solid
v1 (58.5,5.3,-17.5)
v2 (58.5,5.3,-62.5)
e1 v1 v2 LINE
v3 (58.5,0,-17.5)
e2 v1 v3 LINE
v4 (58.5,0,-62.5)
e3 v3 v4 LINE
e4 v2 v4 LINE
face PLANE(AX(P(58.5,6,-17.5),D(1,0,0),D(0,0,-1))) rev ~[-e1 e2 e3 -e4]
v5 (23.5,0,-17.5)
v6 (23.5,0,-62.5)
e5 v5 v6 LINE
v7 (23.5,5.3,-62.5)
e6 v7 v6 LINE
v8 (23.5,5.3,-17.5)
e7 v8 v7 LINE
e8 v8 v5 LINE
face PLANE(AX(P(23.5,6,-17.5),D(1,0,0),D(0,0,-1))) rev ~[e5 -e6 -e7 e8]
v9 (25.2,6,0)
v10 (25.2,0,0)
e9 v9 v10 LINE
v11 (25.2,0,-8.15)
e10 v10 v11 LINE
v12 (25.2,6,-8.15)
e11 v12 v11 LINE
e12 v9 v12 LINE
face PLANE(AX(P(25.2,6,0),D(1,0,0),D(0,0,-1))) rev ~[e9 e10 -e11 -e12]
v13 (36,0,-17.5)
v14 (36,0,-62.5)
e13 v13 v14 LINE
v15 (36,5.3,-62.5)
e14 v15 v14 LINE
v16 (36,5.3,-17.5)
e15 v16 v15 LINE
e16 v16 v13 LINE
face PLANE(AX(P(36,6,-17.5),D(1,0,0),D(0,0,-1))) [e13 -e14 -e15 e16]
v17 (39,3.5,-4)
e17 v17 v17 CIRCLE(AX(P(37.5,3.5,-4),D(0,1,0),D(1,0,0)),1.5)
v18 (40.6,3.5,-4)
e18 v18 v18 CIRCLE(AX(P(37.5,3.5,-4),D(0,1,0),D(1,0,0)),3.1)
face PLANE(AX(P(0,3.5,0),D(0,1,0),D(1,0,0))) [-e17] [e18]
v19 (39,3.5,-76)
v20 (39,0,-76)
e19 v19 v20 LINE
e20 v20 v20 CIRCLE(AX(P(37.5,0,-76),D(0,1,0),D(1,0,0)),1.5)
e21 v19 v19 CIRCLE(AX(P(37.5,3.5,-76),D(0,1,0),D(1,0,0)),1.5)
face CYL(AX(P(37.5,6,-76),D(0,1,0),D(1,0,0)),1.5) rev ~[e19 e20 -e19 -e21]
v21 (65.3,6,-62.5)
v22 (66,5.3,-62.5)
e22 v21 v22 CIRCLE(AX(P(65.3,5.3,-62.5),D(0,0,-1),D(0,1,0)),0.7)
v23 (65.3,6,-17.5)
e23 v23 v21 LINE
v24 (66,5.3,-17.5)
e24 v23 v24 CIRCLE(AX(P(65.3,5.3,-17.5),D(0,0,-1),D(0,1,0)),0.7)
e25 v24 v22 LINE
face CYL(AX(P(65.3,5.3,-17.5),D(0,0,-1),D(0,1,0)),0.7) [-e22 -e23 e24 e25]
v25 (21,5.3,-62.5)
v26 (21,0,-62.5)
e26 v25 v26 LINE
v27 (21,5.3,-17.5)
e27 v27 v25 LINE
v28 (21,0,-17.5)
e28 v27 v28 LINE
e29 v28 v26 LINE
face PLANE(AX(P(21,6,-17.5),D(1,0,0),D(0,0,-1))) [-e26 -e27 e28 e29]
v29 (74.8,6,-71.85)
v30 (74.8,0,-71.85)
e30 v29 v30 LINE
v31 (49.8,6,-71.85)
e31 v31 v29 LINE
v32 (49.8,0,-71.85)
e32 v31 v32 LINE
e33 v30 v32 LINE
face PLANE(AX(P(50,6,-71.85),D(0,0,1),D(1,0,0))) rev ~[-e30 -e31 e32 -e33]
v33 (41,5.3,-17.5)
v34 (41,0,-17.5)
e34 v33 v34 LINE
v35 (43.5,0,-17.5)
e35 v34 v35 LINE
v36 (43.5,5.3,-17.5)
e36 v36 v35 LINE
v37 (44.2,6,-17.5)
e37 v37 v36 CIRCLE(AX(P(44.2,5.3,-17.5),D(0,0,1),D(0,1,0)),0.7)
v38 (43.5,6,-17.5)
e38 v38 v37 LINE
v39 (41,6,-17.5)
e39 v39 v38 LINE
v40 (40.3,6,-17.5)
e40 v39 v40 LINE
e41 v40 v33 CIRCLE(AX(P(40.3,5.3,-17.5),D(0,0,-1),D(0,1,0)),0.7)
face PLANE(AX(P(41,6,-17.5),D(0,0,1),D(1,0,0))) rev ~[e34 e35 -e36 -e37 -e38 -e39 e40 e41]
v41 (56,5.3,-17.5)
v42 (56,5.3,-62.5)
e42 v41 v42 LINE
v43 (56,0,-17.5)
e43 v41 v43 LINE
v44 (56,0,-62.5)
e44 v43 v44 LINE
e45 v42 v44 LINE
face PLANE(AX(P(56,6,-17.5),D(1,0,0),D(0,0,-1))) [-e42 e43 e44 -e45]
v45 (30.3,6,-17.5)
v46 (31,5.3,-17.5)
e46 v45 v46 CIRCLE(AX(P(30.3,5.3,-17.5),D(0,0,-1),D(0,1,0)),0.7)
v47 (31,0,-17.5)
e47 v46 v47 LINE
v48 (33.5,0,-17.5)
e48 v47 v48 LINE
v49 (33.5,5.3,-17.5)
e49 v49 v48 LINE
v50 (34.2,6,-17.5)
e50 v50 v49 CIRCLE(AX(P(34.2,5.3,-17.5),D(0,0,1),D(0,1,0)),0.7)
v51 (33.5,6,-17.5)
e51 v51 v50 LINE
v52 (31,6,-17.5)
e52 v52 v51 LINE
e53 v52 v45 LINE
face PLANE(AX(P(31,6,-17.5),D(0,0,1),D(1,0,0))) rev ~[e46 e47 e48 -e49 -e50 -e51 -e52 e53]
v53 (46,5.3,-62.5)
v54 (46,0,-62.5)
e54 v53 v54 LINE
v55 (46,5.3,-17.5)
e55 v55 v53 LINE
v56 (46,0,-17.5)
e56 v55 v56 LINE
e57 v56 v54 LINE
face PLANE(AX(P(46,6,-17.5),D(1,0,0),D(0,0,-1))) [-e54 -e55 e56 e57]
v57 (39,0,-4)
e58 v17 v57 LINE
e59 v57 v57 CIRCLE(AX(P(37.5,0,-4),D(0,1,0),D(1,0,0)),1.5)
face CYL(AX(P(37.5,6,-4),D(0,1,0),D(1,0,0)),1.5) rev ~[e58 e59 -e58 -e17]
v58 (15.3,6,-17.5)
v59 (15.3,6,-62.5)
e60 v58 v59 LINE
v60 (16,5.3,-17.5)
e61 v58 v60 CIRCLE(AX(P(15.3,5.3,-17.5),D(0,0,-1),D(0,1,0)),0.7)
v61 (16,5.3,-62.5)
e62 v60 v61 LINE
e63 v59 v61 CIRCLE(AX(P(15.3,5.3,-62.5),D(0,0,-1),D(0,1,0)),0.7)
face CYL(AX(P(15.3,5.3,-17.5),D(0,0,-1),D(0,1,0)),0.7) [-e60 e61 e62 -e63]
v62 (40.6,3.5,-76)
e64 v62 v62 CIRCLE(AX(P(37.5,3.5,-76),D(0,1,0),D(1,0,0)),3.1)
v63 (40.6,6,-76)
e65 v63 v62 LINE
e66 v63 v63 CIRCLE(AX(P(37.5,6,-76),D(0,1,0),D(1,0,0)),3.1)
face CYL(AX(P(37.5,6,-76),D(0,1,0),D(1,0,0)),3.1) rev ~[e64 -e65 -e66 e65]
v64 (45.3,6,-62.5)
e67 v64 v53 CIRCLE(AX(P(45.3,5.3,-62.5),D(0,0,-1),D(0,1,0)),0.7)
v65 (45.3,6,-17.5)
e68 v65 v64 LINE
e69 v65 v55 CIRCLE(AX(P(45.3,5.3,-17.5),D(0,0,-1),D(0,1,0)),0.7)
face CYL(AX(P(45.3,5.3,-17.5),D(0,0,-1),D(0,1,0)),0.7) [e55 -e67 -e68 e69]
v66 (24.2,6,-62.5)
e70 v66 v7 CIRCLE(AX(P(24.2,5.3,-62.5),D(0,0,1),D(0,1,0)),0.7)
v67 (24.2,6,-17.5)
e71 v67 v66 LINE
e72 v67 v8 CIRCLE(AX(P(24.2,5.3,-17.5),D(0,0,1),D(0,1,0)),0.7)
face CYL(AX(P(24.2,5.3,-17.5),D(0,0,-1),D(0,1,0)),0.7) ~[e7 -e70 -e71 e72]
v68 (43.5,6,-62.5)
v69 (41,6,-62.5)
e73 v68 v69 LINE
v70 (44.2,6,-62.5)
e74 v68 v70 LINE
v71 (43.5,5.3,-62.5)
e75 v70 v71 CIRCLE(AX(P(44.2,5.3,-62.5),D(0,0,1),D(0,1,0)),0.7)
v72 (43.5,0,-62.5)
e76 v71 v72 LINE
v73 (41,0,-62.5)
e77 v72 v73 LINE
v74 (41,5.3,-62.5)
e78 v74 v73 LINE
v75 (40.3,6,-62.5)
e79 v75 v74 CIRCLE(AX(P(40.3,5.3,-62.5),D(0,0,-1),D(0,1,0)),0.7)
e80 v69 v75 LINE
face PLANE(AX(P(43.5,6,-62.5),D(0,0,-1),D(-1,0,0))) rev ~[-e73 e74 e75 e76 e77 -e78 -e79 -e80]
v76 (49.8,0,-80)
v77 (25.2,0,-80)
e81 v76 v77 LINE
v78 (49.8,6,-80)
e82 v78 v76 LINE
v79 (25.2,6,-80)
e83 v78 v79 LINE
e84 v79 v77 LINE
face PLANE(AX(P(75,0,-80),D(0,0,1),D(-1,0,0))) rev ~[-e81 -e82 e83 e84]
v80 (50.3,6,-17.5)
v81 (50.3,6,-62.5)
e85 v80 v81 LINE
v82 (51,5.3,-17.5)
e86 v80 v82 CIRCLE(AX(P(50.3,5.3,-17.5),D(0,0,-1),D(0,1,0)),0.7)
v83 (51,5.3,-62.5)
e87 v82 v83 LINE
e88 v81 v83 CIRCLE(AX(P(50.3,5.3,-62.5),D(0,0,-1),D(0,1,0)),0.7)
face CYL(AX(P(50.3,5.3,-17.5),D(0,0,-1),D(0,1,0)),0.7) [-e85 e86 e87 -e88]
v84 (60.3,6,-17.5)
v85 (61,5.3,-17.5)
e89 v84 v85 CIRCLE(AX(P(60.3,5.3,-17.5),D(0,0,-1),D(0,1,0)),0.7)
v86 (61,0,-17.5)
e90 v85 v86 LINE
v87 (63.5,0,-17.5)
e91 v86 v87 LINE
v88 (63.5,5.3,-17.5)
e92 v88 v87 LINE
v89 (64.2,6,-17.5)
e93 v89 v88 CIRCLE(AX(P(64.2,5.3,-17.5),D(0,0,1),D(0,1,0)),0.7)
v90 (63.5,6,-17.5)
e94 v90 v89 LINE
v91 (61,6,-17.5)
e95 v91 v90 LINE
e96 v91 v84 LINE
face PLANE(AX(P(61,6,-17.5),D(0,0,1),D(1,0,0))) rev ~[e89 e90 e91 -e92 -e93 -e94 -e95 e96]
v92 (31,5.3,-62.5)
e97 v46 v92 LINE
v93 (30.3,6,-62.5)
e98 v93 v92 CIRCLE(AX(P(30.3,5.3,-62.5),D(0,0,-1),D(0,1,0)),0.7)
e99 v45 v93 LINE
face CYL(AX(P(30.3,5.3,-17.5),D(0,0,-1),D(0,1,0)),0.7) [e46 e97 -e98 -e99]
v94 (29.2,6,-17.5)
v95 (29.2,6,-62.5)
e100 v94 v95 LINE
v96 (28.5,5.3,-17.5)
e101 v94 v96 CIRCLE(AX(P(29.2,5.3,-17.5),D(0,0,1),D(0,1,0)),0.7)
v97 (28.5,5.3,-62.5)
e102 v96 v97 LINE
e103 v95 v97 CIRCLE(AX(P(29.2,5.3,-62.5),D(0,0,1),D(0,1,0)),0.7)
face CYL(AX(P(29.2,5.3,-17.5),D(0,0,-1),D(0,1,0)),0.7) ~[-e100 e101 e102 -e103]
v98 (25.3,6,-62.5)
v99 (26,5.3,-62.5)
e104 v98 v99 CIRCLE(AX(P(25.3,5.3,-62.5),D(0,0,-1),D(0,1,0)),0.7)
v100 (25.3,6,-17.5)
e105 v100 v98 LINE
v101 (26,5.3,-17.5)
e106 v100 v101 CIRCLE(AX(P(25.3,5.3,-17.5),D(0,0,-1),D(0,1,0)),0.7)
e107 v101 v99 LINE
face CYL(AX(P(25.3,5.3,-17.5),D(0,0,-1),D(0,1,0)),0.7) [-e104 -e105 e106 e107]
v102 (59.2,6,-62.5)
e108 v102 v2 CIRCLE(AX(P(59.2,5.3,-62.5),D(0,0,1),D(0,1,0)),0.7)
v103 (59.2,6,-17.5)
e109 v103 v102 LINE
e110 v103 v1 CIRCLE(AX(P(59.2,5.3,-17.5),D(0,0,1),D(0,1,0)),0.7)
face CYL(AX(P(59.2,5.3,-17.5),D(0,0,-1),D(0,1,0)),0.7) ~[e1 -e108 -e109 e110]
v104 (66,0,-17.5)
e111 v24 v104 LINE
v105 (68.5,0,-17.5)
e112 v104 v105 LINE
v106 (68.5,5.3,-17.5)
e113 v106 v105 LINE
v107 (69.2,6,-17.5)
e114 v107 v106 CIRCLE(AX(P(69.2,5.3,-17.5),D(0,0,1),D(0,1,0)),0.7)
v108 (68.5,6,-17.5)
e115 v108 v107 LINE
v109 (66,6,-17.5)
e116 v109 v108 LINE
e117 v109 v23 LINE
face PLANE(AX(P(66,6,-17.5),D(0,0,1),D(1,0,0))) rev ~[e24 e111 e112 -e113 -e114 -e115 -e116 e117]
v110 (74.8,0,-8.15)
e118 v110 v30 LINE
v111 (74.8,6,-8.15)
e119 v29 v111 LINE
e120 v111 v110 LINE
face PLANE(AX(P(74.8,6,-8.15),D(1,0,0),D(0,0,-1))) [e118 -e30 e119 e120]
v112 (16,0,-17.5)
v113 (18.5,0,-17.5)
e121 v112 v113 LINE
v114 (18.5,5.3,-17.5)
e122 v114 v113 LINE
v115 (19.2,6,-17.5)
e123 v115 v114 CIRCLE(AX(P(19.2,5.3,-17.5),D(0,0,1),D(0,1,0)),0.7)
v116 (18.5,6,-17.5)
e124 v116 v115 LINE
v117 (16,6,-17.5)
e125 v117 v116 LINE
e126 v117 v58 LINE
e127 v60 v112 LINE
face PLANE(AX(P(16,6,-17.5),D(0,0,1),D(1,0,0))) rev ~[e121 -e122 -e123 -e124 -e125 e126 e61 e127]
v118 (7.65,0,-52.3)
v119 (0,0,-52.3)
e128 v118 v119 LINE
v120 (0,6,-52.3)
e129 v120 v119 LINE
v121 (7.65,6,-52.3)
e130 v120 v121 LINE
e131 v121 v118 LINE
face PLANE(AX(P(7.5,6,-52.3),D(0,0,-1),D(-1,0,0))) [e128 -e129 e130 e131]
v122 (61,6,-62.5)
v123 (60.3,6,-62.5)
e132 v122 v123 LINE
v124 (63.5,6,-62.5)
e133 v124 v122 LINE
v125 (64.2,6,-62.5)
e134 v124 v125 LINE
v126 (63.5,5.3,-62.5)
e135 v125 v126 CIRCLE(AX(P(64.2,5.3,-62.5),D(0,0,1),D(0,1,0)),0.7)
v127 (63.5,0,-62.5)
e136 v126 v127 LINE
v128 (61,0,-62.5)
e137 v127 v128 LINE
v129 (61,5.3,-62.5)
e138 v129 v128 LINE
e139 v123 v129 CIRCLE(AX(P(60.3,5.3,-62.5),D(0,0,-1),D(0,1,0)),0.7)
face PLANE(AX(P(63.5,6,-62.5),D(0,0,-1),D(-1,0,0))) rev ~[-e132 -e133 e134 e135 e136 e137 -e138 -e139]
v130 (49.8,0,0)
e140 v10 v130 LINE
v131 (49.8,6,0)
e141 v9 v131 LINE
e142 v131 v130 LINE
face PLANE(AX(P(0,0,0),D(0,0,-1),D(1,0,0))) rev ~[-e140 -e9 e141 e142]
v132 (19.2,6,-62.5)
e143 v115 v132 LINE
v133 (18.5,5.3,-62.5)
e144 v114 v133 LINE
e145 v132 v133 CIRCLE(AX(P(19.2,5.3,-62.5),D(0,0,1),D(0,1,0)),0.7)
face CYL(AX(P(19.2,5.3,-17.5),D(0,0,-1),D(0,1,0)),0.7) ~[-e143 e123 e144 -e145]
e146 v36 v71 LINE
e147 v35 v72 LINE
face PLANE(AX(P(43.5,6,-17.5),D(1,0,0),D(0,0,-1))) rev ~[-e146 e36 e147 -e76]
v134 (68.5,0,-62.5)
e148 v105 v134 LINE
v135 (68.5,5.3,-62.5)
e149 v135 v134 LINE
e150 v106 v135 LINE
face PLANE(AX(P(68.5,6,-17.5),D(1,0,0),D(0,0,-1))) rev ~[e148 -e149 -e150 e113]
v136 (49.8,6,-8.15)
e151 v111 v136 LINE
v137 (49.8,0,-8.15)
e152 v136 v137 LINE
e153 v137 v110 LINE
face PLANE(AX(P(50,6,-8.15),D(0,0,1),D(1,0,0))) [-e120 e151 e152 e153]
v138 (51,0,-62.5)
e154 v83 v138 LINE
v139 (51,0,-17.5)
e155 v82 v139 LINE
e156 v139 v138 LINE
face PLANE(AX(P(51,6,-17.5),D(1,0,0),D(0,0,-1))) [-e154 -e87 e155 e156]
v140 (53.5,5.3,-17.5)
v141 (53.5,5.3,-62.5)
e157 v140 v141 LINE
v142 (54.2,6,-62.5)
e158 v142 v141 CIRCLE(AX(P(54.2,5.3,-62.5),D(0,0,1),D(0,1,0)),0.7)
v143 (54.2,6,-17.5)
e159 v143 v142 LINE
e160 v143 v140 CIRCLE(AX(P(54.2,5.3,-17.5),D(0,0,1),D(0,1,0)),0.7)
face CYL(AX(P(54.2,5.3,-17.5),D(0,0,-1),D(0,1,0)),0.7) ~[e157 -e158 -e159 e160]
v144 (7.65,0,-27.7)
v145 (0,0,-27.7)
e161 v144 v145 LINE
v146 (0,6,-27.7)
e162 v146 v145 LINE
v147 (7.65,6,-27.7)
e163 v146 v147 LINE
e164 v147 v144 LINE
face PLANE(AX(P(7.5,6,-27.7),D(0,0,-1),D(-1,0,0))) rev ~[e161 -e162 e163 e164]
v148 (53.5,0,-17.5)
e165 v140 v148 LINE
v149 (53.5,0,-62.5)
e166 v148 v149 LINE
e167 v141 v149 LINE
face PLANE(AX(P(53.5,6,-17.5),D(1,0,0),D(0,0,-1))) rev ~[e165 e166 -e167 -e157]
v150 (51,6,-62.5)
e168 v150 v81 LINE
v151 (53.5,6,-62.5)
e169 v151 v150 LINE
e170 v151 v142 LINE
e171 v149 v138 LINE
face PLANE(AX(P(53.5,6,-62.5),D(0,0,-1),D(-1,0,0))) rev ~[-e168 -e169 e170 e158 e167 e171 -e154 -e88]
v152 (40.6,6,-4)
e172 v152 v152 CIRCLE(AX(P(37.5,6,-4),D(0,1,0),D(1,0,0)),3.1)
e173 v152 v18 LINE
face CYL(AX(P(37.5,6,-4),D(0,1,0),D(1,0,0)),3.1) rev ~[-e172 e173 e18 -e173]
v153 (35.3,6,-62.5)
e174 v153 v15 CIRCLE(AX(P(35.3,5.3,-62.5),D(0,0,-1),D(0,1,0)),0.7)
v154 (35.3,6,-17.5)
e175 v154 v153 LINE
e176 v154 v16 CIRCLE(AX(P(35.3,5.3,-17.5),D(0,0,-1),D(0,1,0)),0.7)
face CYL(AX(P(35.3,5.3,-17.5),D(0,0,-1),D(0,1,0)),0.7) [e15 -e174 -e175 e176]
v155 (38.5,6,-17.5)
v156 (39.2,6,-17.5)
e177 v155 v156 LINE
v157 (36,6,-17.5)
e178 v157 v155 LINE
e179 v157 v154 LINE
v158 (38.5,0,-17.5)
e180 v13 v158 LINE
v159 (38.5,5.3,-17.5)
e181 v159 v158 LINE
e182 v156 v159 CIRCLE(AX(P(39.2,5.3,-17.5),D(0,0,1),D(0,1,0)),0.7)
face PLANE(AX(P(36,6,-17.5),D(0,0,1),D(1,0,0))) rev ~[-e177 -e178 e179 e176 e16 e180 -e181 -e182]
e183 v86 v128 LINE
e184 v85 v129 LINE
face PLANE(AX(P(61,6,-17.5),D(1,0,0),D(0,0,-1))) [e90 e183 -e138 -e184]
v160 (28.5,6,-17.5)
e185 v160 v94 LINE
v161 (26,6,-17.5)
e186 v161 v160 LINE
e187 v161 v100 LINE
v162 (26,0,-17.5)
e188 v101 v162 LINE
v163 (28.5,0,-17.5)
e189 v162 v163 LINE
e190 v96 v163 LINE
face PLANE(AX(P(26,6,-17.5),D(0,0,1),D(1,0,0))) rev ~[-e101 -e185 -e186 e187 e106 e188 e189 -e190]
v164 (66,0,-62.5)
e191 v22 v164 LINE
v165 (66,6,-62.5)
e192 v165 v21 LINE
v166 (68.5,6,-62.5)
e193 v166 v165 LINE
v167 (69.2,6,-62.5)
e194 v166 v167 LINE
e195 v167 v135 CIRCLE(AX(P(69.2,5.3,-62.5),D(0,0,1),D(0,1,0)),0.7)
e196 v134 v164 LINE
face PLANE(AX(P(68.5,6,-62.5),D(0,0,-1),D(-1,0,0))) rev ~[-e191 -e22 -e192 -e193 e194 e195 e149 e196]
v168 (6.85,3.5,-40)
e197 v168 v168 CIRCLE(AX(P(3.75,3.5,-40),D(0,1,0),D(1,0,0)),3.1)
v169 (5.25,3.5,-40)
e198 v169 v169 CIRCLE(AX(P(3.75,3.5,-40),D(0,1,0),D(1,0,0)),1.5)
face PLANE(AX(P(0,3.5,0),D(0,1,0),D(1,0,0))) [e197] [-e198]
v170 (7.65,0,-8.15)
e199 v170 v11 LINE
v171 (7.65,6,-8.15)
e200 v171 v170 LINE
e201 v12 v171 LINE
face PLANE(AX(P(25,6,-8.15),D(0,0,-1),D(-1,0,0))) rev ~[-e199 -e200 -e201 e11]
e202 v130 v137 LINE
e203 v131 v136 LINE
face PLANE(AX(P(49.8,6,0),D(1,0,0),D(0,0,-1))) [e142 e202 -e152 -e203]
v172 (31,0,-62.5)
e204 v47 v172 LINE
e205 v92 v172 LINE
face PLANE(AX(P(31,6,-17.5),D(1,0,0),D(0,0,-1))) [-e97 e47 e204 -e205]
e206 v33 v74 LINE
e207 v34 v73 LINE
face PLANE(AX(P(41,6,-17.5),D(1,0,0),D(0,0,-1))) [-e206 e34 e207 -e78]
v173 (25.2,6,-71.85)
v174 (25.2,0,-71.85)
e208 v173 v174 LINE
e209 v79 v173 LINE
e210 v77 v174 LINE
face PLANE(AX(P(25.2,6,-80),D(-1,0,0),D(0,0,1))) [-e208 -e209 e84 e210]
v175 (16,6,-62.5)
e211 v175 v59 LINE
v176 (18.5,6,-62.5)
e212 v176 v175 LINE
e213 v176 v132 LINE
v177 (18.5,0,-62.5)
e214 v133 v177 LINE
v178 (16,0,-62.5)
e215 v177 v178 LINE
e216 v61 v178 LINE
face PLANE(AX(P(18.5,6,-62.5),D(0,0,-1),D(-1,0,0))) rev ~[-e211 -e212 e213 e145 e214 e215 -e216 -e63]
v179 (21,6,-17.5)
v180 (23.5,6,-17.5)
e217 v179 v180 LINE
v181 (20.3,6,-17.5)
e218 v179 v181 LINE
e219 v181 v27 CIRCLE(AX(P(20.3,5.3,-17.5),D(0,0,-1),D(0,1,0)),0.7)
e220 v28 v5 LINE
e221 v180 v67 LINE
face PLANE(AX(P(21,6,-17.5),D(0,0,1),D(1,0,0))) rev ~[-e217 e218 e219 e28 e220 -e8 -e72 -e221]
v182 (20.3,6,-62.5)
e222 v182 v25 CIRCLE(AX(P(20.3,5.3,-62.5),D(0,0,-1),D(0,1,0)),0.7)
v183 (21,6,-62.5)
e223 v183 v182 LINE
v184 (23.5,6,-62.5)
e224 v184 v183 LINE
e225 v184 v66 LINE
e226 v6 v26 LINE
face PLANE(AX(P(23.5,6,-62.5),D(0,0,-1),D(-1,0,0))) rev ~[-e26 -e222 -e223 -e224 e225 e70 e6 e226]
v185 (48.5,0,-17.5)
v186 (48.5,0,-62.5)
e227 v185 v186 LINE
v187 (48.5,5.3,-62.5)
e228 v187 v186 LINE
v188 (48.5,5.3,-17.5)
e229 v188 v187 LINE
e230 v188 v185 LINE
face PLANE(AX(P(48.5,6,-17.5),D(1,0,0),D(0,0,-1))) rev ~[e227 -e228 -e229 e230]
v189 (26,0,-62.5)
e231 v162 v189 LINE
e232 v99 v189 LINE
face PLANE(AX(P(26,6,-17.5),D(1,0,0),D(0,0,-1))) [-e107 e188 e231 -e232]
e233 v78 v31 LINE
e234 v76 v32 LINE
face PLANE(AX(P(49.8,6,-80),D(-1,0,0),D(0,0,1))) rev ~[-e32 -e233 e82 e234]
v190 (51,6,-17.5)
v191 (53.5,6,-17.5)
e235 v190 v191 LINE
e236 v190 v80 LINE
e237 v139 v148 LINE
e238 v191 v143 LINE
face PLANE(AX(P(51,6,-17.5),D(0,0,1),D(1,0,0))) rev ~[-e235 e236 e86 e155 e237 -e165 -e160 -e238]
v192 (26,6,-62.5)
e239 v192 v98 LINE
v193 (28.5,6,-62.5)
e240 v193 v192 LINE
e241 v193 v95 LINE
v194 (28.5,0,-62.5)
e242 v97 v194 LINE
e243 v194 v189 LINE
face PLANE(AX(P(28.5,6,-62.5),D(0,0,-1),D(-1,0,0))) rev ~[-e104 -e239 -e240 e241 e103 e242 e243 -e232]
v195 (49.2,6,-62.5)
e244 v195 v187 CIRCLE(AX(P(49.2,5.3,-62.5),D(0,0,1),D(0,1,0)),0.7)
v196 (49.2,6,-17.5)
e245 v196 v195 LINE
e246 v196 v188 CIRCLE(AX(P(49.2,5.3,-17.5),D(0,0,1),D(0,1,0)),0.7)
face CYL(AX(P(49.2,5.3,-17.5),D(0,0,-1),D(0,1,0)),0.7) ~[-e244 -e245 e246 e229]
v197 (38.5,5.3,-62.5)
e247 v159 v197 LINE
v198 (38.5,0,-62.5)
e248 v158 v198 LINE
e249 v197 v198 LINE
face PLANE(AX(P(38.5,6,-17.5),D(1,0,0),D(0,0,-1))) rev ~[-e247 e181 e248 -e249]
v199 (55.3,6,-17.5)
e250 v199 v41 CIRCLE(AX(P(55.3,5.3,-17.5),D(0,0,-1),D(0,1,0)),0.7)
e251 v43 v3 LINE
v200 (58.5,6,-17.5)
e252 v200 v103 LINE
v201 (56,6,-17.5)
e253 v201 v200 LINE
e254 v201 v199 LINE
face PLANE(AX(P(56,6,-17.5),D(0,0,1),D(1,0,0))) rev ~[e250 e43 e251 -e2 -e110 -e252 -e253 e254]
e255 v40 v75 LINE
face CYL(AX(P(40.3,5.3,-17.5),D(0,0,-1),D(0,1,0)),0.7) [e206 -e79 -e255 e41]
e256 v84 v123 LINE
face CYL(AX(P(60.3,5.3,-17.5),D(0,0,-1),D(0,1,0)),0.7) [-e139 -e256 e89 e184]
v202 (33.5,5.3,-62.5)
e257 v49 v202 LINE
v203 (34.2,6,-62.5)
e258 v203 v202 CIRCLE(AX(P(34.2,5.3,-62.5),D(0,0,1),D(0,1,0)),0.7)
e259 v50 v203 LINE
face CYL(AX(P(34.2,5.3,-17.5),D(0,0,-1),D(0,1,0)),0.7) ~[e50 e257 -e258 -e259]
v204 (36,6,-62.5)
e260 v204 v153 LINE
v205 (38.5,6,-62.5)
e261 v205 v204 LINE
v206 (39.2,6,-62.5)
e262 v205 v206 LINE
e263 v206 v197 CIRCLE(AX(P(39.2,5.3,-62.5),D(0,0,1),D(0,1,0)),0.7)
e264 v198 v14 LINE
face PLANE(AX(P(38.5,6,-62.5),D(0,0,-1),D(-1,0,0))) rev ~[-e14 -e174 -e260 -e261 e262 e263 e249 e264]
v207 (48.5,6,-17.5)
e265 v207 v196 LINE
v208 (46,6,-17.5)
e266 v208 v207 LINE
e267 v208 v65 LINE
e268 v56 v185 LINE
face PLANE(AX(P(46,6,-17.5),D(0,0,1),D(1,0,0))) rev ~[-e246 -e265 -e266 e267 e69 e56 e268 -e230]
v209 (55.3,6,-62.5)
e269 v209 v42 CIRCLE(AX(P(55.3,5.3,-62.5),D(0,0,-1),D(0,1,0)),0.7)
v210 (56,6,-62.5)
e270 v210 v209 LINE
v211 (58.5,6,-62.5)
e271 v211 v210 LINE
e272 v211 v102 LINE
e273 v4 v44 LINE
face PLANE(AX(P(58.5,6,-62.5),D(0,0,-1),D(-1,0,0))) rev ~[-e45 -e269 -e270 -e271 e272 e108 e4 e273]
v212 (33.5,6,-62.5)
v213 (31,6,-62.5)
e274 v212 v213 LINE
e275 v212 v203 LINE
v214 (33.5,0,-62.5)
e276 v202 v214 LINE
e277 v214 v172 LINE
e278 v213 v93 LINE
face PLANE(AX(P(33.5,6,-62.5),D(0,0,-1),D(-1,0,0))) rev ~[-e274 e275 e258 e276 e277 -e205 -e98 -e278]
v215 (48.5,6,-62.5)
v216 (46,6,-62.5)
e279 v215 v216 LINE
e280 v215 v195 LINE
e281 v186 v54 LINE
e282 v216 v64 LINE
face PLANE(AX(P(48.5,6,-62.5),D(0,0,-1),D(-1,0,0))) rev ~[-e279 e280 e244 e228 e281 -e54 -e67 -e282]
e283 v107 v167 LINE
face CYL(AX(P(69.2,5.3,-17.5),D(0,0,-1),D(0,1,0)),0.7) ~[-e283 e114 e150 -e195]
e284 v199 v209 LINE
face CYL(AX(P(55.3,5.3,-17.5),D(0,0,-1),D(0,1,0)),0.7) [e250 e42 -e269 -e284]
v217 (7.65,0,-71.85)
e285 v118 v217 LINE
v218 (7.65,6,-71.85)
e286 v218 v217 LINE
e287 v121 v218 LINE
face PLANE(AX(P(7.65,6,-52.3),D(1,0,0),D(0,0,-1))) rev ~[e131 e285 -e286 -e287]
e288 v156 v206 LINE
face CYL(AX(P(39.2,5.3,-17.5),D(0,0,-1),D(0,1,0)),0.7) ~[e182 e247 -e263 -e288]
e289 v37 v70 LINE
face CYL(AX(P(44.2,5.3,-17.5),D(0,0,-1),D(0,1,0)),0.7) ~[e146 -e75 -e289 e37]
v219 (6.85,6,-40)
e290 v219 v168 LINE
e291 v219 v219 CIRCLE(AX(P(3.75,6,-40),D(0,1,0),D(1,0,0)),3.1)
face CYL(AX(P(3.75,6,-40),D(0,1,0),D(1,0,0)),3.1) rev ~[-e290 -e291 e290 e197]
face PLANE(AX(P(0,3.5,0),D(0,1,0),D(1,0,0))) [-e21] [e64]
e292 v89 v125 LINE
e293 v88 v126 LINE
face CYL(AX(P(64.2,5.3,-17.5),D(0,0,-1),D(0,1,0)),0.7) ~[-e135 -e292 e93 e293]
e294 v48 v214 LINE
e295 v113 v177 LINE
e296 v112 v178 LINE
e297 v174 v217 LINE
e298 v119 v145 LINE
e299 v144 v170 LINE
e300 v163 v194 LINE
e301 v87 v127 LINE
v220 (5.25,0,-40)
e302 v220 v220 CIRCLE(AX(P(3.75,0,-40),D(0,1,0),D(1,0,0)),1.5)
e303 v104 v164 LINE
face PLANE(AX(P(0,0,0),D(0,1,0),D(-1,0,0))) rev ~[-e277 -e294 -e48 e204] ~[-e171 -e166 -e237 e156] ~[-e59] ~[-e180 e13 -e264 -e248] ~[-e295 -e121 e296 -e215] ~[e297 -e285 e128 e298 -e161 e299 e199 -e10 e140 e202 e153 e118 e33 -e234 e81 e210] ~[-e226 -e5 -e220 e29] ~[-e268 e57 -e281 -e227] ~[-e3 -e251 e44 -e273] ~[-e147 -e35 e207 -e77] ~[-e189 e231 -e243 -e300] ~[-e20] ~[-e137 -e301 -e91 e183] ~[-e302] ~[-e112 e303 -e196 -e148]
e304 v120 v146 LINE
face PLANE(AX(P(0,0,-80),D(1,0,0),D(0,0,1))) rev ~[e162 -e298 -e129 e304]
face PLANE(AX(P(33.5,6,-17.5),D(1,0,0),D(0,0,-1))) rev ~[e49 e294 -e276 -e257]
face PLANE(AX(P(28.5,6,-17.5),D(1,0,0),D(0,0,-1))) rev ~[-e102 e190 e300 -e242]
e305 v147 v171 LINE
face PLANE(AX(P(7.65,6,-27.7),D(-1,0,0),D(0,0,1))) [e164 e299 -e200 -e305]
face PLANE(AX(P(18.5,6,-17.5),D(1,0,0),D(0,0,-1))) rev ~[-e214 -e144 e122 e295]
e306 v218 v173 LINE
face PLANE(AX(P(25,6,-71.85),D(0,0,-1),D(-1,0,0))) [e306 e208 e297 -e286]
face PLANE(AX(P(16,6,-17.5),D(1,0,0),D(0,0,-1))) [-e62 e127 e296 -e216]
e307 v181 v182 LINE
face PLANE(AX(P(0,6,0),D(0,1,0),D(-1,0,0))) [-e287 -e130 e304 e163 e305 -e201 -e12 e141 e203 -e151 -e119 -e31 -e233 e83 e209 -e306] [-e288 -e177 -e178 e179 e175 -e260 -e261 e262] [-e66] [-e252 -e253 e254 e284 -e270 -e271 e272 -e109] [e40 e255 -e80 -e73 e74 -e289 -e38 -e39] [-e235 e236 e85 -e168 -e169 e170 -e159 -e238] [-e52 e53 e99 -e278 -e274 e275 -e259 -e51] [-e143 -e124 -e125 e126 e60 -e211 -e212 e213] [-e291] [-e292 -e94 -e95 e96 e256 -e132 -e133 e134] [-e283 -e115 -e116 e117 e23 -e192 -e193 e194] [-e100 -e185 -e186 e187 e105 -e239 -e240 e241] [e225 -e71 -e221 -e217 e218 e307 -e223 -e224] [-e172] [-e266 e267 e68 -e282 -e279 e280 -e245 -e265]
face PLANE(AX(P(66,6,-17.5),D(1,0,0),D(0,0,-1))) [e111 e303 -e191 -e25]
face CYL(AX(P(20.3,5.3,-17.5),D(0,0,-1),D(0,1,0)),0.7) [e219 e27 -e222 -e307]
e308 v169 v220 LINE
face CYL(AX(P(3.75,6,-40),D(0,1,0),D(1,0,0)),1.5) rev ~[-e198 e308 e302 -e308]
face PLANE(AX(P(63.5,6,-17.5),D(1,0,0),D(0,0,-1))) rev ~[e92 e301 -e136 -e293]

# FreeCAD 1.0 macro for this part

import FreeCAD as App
import Part
import Sketcher

V = App.Vector
Q = App.Units.Quantity


def edges_at(feature, points):
    """Names of the edges that pass closest to the given points."""
    edges = feature.Shape.Edges
    near = lambda p: min(range(len(edges)), key=lambda i: edges[i].distToShape(Part.Vertex(*p))[0])
    return sorted({f"Edge{near(p) + 1}" for p in points})


def add_polygon(sketch, points):
    """Adds a closed chain of lines whose ends are joined by coincident constraints."""
    first, n = sketch.GeometryCount, len(points)
    for a, b in zip(points, points[1:] + points[:1]):
        sketch.addGeometry(Part.LineSegment(App.Vector(*a, 0), App.Vector(*b, 0)), False)
    for i in range(n):
        sketch.addConstraint(Sketcher.Constraint("Coincident", first + i, 2, first + (i + 1) % n, 1))

doc = App.newDocument("Part")
params = doc.addObject("Spreadsheet::Sheet", "Params")
for row, (alias, value) in enumerate([
    ("sketch1_width", "75 mm"),
    ("sketch1_height", "80 mm"),
    ("pad1_length", "6 mm"),
    ("sketch2_width", "25 mm"),
    ("sketch2_height", "8 mm"),
    ("sketch2_width2", "7.5 mm"),
    ("sketch2_height2", "27.5 mm"),
    ("sketch3_diameter", "3 mm"),
    ("sketch4_diameter", "6.2 mm"),
    ("sketch4_diameter2", "3 mm"),
    ("pocket3_length", "2.5 mm"),
    ("sketch5_width", "0.2 mm"),
    ("sketch5_width2", "25 mm"),
    ("sketch5_height", "8 mm"),
    ("sketch5_height2", "64 mm"),
    ("sketch5_width3", "7.5 mm"),
    ("pocket4_length", "6 mm"),
    ("sketch6_height", "45 mm"),
    ("sketch6_width", "2.5 mm"),
    ("pocket5_length", "6 mm"),
    ("fillet_radius", "0.7 mm"),
], start=1):
    params.set(f"A{row}", alias)
    params.set(f"B{row}", "=" + value)
    params.setAlias(f"B{row}", alias)

body = doc.addObject("PartDesign::Body", "Body")

# Sketch on XZ plane
sketch1 = body.newObject("Sketcher::SketchObject", "Sketch")
sketch1.AttachmentSupport = (doc.getObject("XZ_Plane"), [""])
sketch1.MapMode = "FlatFace"
add_polygon(sketch1, [(0, -80), (0, 0), (75, 0), (75, -80)])  # lines 0-3
sketch1.addConstraint([
    Sketcher.Constraint("Vertical", 0),
    Sketcher.Constraint("Horizontal", 1),
    Sketcher.Constraint("Vertical", 2),
    Sketcher.Constraint("Horizontal", 3),
    Sketcher.Constraint("Coincident", 0, 2, -1, 1),
    Sketcher.Constraint("DistanceX", 1, 1, 1, 2, Q("75 mm")),
    Sketcher.Constraint("DistanceY", 0, 1, 0, 2, Q("80 mm")),
])
sketch1.setExpression("Constraints[9]", "Params.sketch1_width")
sketch1.setExpression("Constraints[10]", "Params.sketch1_height")
pad1 = body.newObject("PartDesign::Pad", "Pad")
pad1.Profile = sketch1
pad1.setExpression("Length", "Params.pad1_length")
pad1.Reversed = True

# Sketch on XZ plane
sketch2 = body.newObject("Sketcher::SketchObject", "Sketch001")
sketch2.AttachmentSupport = (doc.getObject("XZ_Plane"), [""])
sketch2.MapMode = "FlatFace"
sketch2.AttachmentOffset = App.Placement(V(0, 0, -6), App.Rotation())
add_polygon(sketch2, [(0, -28), (0, 0), (25, 0), (25, -8), (8, -8), (8, -28)])  # lines 0-5
add_polygon(sketch2, [(50, -8), (50, 0), (75, 0), (75, -8)])  # lines 6-9
add_polygon(sketch2, [(0, -80), (0, -52), (8, -52), (8, -72), (25, -72), (25, -80)])  # lines 10-15
add_polygon(sketch2, [(50, -72), (75, -72), (75, -80), (50, -80)])  # lines 16-19
sketch2.addConstraint([
    Sketcher.Constraint("Vertical", 0),
    Sketcher.Constraint("Horizontal", 1),
    Sketcher.Constraint("Vertical", 2),
    Sketcher.Constraint("Horizontal", 3),
    Sketcher.Constraint("Vertical", 4),
    Sketcher.Constraint("Horizontal", 5),
    Sketcher.Constraint("Vertical", 6),
    Sketcher.Constraint("Horizontal", 7),
    Sketcher.Constraint("Vertical", 8),
    Sketcher.Constraint("Horizontal", 9),
    Sketcher.Constraint("Vertical", 10),
    Sketcher.Constraint("Horizontal", 11),
    Sketcher.Constraint("Vertical", 12),
    Sketcher.Constraint("Horizontal", 13),
    Sketcher.Constraint("Vertical", 14),
    Sketcher.Constraint("Horizontal", 15),
    Sketcher.Constraint("Horizontal", 16),
    Sketcher.Constraint("Vertical", 17),
    Sketcher.Constraint("Horizontal", 18),
    Sketcher.Constraint("Vertical", 19),
    Sketcher.Constraint("Coincident", 0, 2, -1, 1),
    Sketcher.Constraint("PointOnObject", 6, 2, -1),
    Sketcher.Constraint("PointOnObject", 10, 2, -2),
    Sketcher.Constraint("Horizontal", 3, 2, 8, 2),
    Sketcher.Constraint("Horizontal", 13, 2, 16, 2),
    Sketcher.Constraint("Horizontal", 15, 2, 17, 2),
    Sketcher.Constraint("Vertical", 4, 2, 11, 2),
    Sketcher.Constraint("Vertical", 2, 2, 13, 2),
    Sketcher.Constraint("Vertical", 8, 2, 16, 2),
    Sketcher.Constraint("Vertical", 9, 2, 18, 2),
    Sketcher.Constraint("Equal", 1, 7),
    Sketcher.Constraint("Equal", 0, 10),
    Sketcher.Constraint("Equal", 4, 12),
    Sketcher.Constraint("DistanceX", 1, 1, 1, 2, Q("25 mm")),
    Sketcher.Constraint("DistanceY", 2, 2, 2, 1, Q("8 mm")),
    Sketcher.Constraint("DistanceX", 5, 2, 5, 1, Q("7.5 mm")),
    Sketcher.Constraint("DistanceY", 0, 1, 0, 2, Q("27.5 mm")),
    Sketcher.Constraint("DistanceX", 1, 2, 6, 2, Q("25 mm")),
    Sketcher.Constraint("DistanceY", 10, 2, 5, 2, Q("25 mm")),
])
sketch2.setExpression("Constraints[53]", "Params.sketch2_width")
sketch2.setExpression("Constraints[54]", "Params.sketch2_height")
sketch2.setExpression("Constraints[55]", "Params.sketch2_width2")
sketch2.setExpression("Constraints[56]", "Params.sketch2_height2")
pocket1 = body.newObject("PartDesign::Pocket", "Pocket")
pocket1.Profile = sketch2
pocket1.Type = "ThroughAll"
pocket1.Reversed = True

# Sketch on XZ plane
sketch3 = body.newObject("Sketcher::SketchObject", "Sketch002")
sketch3.AttachmentSupport = (doc.getObject("XZ_Plane"), [""])
sketch3.MapMode = "FlatFace"
sketch3.AttachmentOffset = App.Placement(V(0, 0, -6), App.Rotation())
sketch3.addGeometry([
    Part.Circle(V(3.8, -40, 0), V(0, 0, 1), 1.5),
    Part.Circle(V(37.5, -76, 0), V(0, 0, 1), 1.5),
    Part.Circle(V(37.5, -4, 0), V(0, 0, 1), 1.5),
], False)
sketch3.addConstraint([
    Sketcher.Constraint("Equal", 0, 1),
    Sketcher.Constraint("Equal", 1, 2),
    Sketcher.Constraint("Vertical", 1, 3, 2, 3),
    Sketcher.Constraint("Diameter", 0, Q("3 mm")),
    Sketcher.Constraint("DistanceY", 2, 3, -1, 1, Q("4 mm")),
    Sketcher.Constraint("DistanceX", -1, 1, 0, 3, Q("3.75 mm")),
    Sketcher.Constraint("DistanceY", 0, 3, -1, 1, Q("40 mm")),
    Sketcher.Constraint("DistanceY", 1, 3, -1, 1, Q("76 mm")),
    Sketcher.Constraint("DistanceX", -1, 1, 1, 3, Q("37.5 mm")),
])
sketch3.setExpression("Constraints[3]", "Params.sketch3_diameter")
pocket2 = body.newObject("PartDesign::Pocket", "Pocket001")
pocket2.Profile = sketch3
pocket2.Type = "ThroughAll"
pocket2.Reversed = True

# Sketch on XZ plane
sketch4 = body.newObject("Sketcher::SketchObject", "Sketch003")
sketch4.AttachmentSupport = (doc.getObject("XZ_Plane"), [""])
sketch4.MapMode = "FlatFace"
sketch4.AttachmentOffset = App.Placement(V(0, 0, -6), App.Rotation())
sketch4.addGeometry([
    Part.Circle(V(3.8, -40, 0), V(0, 0, 1), 3.1),
    Part.Circle(V(37.5, -4, 0), V(0, 0, 1), 3.1),
    Part.Circle(V(37.5, -76, 0), V(0, 0, 1), 3.1),
    Part.Circle(V(37.5, -76, 0), V(0, 0, 1), 1.5),
], False)
sketch4.addConstraint([
    Sketcher.Constraint("Coincident", 3, 3, 2, 3),
    Sketcher.Constraint("Equal", 0, 1),
    Sketcher.Constraint("Equal", 1, 2),
    Sketcher.Constraint("Vertical", 1, 3, 2, 3),
    Sketcher.Constraint("Diameter", 0, Q("6.2 mm")),
    Sketcher.Constraint("Diameter", 3, Q("3 mm")),
    Sketcher.Constraint("DistanceY", 0, 3, -1, 1, Q("40 mm")),
    Sketcher.Constraint("DistanceY", 1, 3, -1, 1, Q("4 mm")),
    Sketcher.Constraint("DistanceY", 2, 3, -1, 1, Q("76 mm")),
    Sketcher.Constraint("DistanceX", -1, 1, 1, 3, Q("37.5 mm")),
    Sketcher.Constraint("DistanceX", -1, 1, 0, 3, Q("3.75 mm")),
])
sketch4.setExpression("Constraints[4]", "Params.sketch4_diameter")
sketch4.setExpression("Constraints[5]", "Params.sketch4_diameter2")
pocket3 = body.newObject("PartDesign::Pocket", "Pocket002")
pocket3.Profile = sketch4
pocket3.setExpression("Length", "Params.pocket3_length")
pocket3.Reversed = True

# Sketch on XZ plane
sketch5 = body.newObject("Sketcher::SketchObject", "Sketch004")
sketch5.AttachmentSupport = (doc.getObject("XZ_Plane"), [""])
sketch5.MapMode = "FlatFace"
sketch5.AttachmentOffset = App.Placement(V(0, 0, -6), App.Rotation())
add_polygon(sketch5, [(7.5, -52.5), (0, -52.5), (0, -52.3), (7.65, -52.3), (7.65, -71.85), (25.2, -71.85), (25.2, -80), (25, -80), (25, -72), (7.5, -72)])  # lines 0-9
add_polygon(sketch5, [(0, -27.7), (0, -27.5), (7.5, -27.5), (7.5, -8), (25, -8), (25, 0), (25.2, 0), (25.2, -8.15), (7.65, -8.15), (7.65, -27.7)])  # lines 10-19
add_polygon(sketch5, [(75, -72), (50, -72), (50, -80), (49.8, -80), (49.8, -71.85), (74.8, -71.85), (74.8, -8.15), (49.8, -8.15), (49.8, 0), (50, 0), (50, -8), (75, -8)])  # lines 20-31
sketch5.addConstraint([
    Sketcher.Constraint("Horizontal", 0),
    Sketcher.Constraint("Vertical", 1),
    Sketcher.Constraint("Horizontal", 2),
    Sketcher.Constraint("Vertical", 3),
    Sketcher.Constraint("Horizontal", 4),
    Sketcher.Constraint("Vertical", 5),
    Sketcher.Constraint("Horizontal", 6),
    Sketcher.Constraint("Vertical", 7),
    Sketcher.Constraint("Horizontal", 8),
    Sketcher.Constraint("Vertical", 9),
    Sketcher.Constraint("Vertical", 10),
    Sketcher.Constraint("Horizontal", 11),
    Sketcher.Constraint("Vertical", 12),
    Sketcher.Constraint("Horizontal", 13),
    Sketcher.Constraint("Vertical", 14),
    Sketcher.Constraint("Horizontal", 15),
    Sketcher.Constraint("Vertical", 16),
    Sketcher.Constraint("Horizontal", 17),
    Sketcher.Constraint("Vertical", 18),
    Sketcher.Constraint("Horizontal", 19),
    Sketcher.Constraint("Horizontal", 20),
    Sketcher.Constraint("Vertical", 21),
    Sketcher.Constraint("Horizontal", 22),
    Sketcher.Constraint("Vertical", 23),
    Sketcher.Constraint("Horizontal", 24),
    Sketcher.Constraint("Vertical", 25),
    Sketcher.Constraint("Horizontal", 26),
    Sketcher.Constraint("Vertical", 27),
    Sketcher.Constraint("Horizontal", 28),
    Sketcher.Constraint("Vertical", 29),
    Sketcher.Constraint("Horizontal", 30),
    Sketcher.Constraint("Vertical", 31),
    Sketcher.Constraint("PointOnObject", 0, 2, -2),
    Sketcher.Constraint("PointOnObject", 10, 2, -2),
    Sketcher.Constraint("PointOnObject", 14, 2, -1),
    Sketcher.Constraint("PointOnObject", 27, 2, -1),
    Sketcher.Constraint("Horizontal", 8, 2, 20, 2),
    Sketcher.Constraint("Horizontal", 6, 2, 21, 2),
    Sketcher.Constraint("Horizontal", 4, 2, 23, 2),
    Sketcher.Constraint("Horizontal", 17, 2, 25, 2),
    Sketcher.Constraint("Horizontal", 13, 2, 29, 2),
    Sketcher.Constraint("Vertical", 9, 2, 11, 2),
    Sketcher.Constraint("Vertical", 7, 2, 13, 2),
    Sketcher.Constraint("Vertical", 5, 2, 15, 2),
    Sketcher.Constraint("Vertical", 3, 2, 17, 2),
    Sketcher.Constraint("Vertical", 23, 2, 26, 2),
    Sketcher.Constraint("Vertical", 21, 2, 28, 2),
    Sketcher.Constraint("Equal", 15, 22),
    Sketcher.Constraint("Equal", 20, 24),
    Sketcher.Constraint("Equal", 28, 1),
    Sketcher.Constraint("Equal", 1, 10),
    Sketcher.Constraint("Equal", 9, 12),
    Sketcher.Constraint("Equal", 7, 14),
    Sketcher.Constraint("Equal", 5, 16),
    Sketcher.Constraint("DistanceX", 6, 2, 6, 1, Q("0.2 mm")),
    Sketcher.Constraint("DistanceX", 20, 2, 20, 1, Q("25 mm")),
    Sketcher.Constraint("DistanceY", 7, 1, 7, 2, Q("8 mm")),
    Sketcher.Constraint("DistanceY", 31, 2, 31, 1, Q("64 mm")),
    Sketcher.Constraint("DistanceY", 7, 2, 4, 2, Q("0.15 mm")),
    Sketcher.Constraint("DistanceX", 8, 2, 3, 2, Q("0.15 mm")),
    Sketcher.Constraint("DistanceX", 0, 2, 0, 1, Q("7.5 mm")),
    Sketcher.Constraint("DistanceX", 8, 2, 8, 1, Q("17.5 mm")),
    Sketcher.Constraint("DistanceY", 9, 1, 9, 2, Q("19.5 mm")),
    Sketcher.Constraint("DistanceX", -1, 1, 20, 2, Q("50 mm")),
])
sketch5.setExpression("Constraints[86]", "Params.sketch5_width")
sketch5.setExpression("Constraints[87]", "Params.sketch5_width2")
sketch5.setExpression("Constraints[88]", "Params.sketch5_height")
sketch5.setExpression("Constraints[89]", "Params.sketch5_height2")
sketch5.setExpression("Constraints[92]", "Params.sketch5_width3")
pocket4 = body.newObject("PartDesign::Pocket", "Pocket003")
pocket4.Profile = sketch5
pocket4.setExpression("Length", "Params.pocket4_length")
pocket4.Reversed = True

# Sketch on XZ plane
sketch6 = body.newObject("Sketcher::SketchObject", "Sketch005")
sketch6.AttachmentSupport = (doc.getObject("XZ_Plane"), [""])
sketch6.MapMode = "FlatFace"
sketch6.AttachmentOffset = App.Placement(V(0, 0, -6), App.Rotation())
add_polygon(sketch6, [(16, -62.5), (16, -17.5), (18.5, -17.5), (18.5, -62.5)])  # lines 0-3
add_polygon(sketch6, [(21, -62.5), (21, -17.5), (23.5, -17.5), (23.5, -62.5)])  # lines 4-7
add_polygon(sketch6, [(26, -62.5), (26, -17.5), (28.5, -17.5), (28.5, -62.5)])  # lines 8-11
add_polygon(sketch6, [(31, -62.5), (31, -17.5), (33.5, -17.5), (33.5, -62.5)])  # lines 12-15
add_polygon(sketch6, [(36, -62.5), (36, -17.5), (38.5, -17.5), (38.5, -62.5)])  # lines 16-19
add_polygon(sketch6, [(41, -62.5), (41, -17.5), (43.5, -17.5), (43.5, -62.5)])  # lines 20-23
add_polygon(sketch6, [(46, -62.5), (46, -17.5), (48.5, -17.5), (48.5, -62.5)])  # lines 24-27
add_polygon(sketch6, [(51, -62.5), (51, -17.5), (53.5, -17.5), (53.5, -62.5)])  # lines 28-31
add_polygon(sketch6, [(56, -62.5), (56, -17.5), (58.5, -17.5), (58.5, -62.5)])  # lines 32-35
add_polygon(sketch6, [(61, -62.5), (61, -17.5), (63.5, -17.5), (63.5, -62.5)])  # lines 36-39
add_polygon(sketch6, [(66, -62.5), (66, -17.5), (68.5, -17.5), (68.5, -62.5)])  # lines 40-43
sketch6.addConstraint([
    Sketcher.Constraint("Vertical", 0),
    Sketcher.Constraint("Horizontal", 1),
    Sketcher.Constraint("Vertical", 2),
    Sketcher.Constraint("Horizontal", 3),
    Sketcher.Constraint("Vertical", 4),
    Sketcher.Constraint("Horizontal", 5),
    Sketcher.Constraint("Vertical", 6),
    Sketcher.Constraint("Horizontal", 7),
    Sketcher.Constraint("Vertical", 8),
    Sketcher.Constraint("Horizontal", 9),
    Sketcher.Constraint("Vertical", 10),
    Sketcher.Constraint("Horizontal", 11),
    Sketcher.Constraint("Vertical", 12),
    Sketcher.Constraint("Horizontal", 13),
    Sketcher.Constraint("Vertical", 14),
    Sketcher.Constraint("Horizontal", 15),
    Sketcher.Constraint("Vertical", 16),
    Sketcher.Constraint("Horizontal", 17),
    Sketcher.Constraint("Vertical", 18),
    Sketcher.Constraint("Horizontal", 19),
    Sketcher.Constraint("Vertical", 20),
    Sketcher.Constraint("Horizontal", 21),
    Sketcher.Constraint("Vertical", 22),
    Sketcher.Constraint("Horizontal", 23),
    Sketcher.Constraint("Vertical", 24),
    Sketcher.Constraint("Horizontal", 25),
    Sketcher.Constraint("Vertical", 26),
    Sketcher.Constraint("Horizontal", 27),
    Sketcher.Constraint("Vertical", 28),
    Sketcher.Constraint("Horizontal", 29),
    Sketcher.Constraint("Vertical", 30),
    Sketcher.Constraint("Horizontal", 31),
    Sketcher.Constraint("Vertical", 32),
    Sketcher.Constraint("Horizontal", 33),
    Sketcher.Constraint("Vertical", 34),
    Sketcher.Constraint("Horizontal", 35),
    Sketcher.Constraint("Vertical", 36),
    Sketcher.Constraint("Horizontal", 37),
    Sketcher.Constraint("Vertical", 38),
    Sketcher.Constraint("Horizontal", 39),
    Sketcher.Constraint("Vertical", 40),
    Sketcher.Constraint("Horizontal", 41),
    Sketcher.Constraint("Vertical", 42),
    Sketcher.Constraint("Horizontal", 43),
    Sketcher.Constraint("Horizontal", 1, 2, 4, 2),
    Sketcher.Constraint("Horizontal", 3, 2, 6, 2),
    Sketcher.Constraint("Horizontal", 5, 2, 8, 2),
    Sketcher.Constraint("Horizontal", 7, 2, 10, 2),
    Sketcher.Constraint("Horizontal", 9, 2, 12, 2),
    Sketcher.Constraint("Horizontal", 11, 2, 14, 2),
    Sketcher.Constraint("Horizontal", 13, 2, 16, 2),
    Sketcher.Constraint("Horizontal", 15, 2, 18, 2),
    Sketcher.Constraint("Horizontal", 17, 2, 20, 2),
    Sketcher.Constraint("Horizontal", 19, 2, 22, 2),
    Sketcher.Constraint("Horizontal", 21, 2, 24, 2),
    Sketcher.Constraint("Horizontal", 23, 2, 26, 2),
    Sketcher.Constraint("Horizontal", 25, 2, 28, 2),
    Sketcher.Constraint("Horizontal", 27, 2, 30, 2),
    Sketcher.Constraint("Horizontal", 29, 2, 32, 2),
    Sketcher.Constraint("Horizontal", 31, 2, 34, 2),
    Sketcher.Constraint("Horizontal", 33, 2, 36, 2),
    Sketcher.Constraint("Horizontal", 35, 2, 38, 2),
    Sketcher.Constraint("Horizontal", 37, 2, 40, 2),
    Sketcher.Constraint("Horizontal", 39, 2, 42, 2),
    Sketcher.Constraint("Equal", 3, 5),
    Sketcher.Constraint("Equal", 7, 9),
    Sketcher.Constraint("Equal", 11, 13),
    Sketcher.Constraint("Equal", 15, 17),
    Sketcher.Constraint("Equal", 19, 21),
    Sketcher.Constraint("Equal", 23, 25),
    Sketcher.Constraint("Equal", 27, 29),
    Sketcher.Constraint("Equal", 31, 33),
    Sketcher.Constraint("Equal", 35, 37),
    Sketcher.Constraint("Equal", 39, 41),
    Sketcher.Constraint("DistanceY", 0, 1, 0, 2, Q("45 mm")),
    Sketcher.Constraint("DistanceX", 1, 1, 1, 2, Q("2.5 mm")),
    Sketcher.Constraint("DistanceX", -1, 1, 12, 2, Q("31 mm")),
    Sketcher.Constraint("DistanceX", 1, 2, 4, 2, Q("2.5 mm")),
    Sketcher.Constraint("DistanceX", 5, 2, 8, 2, Q("2.5 mm")),
    Sketcher.Constraint("DistanceX", 9, 2, 12, 2, Q("2.5 mm")),
    Sketcher.Constraint("DistanceX", 13, 2, 16, 2, Q("2.5 mm")),
    Sketcher.Constraint("DistanceX", 17, 2, 20, 2, Q("2.5 mm")),
    Sketcher.Constraint("DistanceX", 21, 2, 24, 2, Q("2.5 mm")),
    Sketcher.Constraint("DistanceX", 25, 2, 28, 2, Q("2.5 mm")),
    Sketcher.Constraint("DistanceX", 29, 2, 32, 2, Q("2.5 mm")),
    Sketcher.Constraint("DistanceX", 33, 2, 36, 2, Q("2.5 mm")),
    Sketcher.Constraint("DistanceX", 37, 2, 40, 2, Q("2.5 mm")),
    Sketcher.Constraint("DistanceY", 0, 2, -1, 1, Q("17.5 mm")),
])
sketch6.setExpression("Constraints[118]", "Params.sketch6_height")
sketch6.setExpression("Constraints[119]", "Params.sketch6_width")
pocket5 = body.newObject("PartDesign::Pocket", "Pocket004")
pocket5.Profile = sketch6
pocket5.setExpression("Length", "Params.pocket5_length")
pocket5.Reversed = True
doc.recompute()

fillet = body.newObject("PartDesign::Fillet", "Fillet")
fillet.Base = (pocket5, edges_at(pocket5, [
    (66, 6, -40),
    (63.5, 6, -40),
    (61, 6, -40),
    (58.5, 6, -40),
    (56, 6, -40),
    (53.5, 6, -40),
    (51, 6, -40),
    (48.5, 6, -40),
    (46, 6, -40),
    (43.5, 6, -40),
    (41, 6, -40),
    (38.5, 6, -40),
    (68.5, 6, -40),
    (36, 6, -40),
    (33.5, 6, -40),
    (31, 6, -40),
    (28.5, 6, -40),
    (26, 6, -40),
    (23.5, 6, -40),
    (21, 6, -40),
    (18.5, 6, -40),
    (16, 6, -40),
]))
fillet.setExpression("Radius", "Params.fillet_radius")

doc.recompute()
